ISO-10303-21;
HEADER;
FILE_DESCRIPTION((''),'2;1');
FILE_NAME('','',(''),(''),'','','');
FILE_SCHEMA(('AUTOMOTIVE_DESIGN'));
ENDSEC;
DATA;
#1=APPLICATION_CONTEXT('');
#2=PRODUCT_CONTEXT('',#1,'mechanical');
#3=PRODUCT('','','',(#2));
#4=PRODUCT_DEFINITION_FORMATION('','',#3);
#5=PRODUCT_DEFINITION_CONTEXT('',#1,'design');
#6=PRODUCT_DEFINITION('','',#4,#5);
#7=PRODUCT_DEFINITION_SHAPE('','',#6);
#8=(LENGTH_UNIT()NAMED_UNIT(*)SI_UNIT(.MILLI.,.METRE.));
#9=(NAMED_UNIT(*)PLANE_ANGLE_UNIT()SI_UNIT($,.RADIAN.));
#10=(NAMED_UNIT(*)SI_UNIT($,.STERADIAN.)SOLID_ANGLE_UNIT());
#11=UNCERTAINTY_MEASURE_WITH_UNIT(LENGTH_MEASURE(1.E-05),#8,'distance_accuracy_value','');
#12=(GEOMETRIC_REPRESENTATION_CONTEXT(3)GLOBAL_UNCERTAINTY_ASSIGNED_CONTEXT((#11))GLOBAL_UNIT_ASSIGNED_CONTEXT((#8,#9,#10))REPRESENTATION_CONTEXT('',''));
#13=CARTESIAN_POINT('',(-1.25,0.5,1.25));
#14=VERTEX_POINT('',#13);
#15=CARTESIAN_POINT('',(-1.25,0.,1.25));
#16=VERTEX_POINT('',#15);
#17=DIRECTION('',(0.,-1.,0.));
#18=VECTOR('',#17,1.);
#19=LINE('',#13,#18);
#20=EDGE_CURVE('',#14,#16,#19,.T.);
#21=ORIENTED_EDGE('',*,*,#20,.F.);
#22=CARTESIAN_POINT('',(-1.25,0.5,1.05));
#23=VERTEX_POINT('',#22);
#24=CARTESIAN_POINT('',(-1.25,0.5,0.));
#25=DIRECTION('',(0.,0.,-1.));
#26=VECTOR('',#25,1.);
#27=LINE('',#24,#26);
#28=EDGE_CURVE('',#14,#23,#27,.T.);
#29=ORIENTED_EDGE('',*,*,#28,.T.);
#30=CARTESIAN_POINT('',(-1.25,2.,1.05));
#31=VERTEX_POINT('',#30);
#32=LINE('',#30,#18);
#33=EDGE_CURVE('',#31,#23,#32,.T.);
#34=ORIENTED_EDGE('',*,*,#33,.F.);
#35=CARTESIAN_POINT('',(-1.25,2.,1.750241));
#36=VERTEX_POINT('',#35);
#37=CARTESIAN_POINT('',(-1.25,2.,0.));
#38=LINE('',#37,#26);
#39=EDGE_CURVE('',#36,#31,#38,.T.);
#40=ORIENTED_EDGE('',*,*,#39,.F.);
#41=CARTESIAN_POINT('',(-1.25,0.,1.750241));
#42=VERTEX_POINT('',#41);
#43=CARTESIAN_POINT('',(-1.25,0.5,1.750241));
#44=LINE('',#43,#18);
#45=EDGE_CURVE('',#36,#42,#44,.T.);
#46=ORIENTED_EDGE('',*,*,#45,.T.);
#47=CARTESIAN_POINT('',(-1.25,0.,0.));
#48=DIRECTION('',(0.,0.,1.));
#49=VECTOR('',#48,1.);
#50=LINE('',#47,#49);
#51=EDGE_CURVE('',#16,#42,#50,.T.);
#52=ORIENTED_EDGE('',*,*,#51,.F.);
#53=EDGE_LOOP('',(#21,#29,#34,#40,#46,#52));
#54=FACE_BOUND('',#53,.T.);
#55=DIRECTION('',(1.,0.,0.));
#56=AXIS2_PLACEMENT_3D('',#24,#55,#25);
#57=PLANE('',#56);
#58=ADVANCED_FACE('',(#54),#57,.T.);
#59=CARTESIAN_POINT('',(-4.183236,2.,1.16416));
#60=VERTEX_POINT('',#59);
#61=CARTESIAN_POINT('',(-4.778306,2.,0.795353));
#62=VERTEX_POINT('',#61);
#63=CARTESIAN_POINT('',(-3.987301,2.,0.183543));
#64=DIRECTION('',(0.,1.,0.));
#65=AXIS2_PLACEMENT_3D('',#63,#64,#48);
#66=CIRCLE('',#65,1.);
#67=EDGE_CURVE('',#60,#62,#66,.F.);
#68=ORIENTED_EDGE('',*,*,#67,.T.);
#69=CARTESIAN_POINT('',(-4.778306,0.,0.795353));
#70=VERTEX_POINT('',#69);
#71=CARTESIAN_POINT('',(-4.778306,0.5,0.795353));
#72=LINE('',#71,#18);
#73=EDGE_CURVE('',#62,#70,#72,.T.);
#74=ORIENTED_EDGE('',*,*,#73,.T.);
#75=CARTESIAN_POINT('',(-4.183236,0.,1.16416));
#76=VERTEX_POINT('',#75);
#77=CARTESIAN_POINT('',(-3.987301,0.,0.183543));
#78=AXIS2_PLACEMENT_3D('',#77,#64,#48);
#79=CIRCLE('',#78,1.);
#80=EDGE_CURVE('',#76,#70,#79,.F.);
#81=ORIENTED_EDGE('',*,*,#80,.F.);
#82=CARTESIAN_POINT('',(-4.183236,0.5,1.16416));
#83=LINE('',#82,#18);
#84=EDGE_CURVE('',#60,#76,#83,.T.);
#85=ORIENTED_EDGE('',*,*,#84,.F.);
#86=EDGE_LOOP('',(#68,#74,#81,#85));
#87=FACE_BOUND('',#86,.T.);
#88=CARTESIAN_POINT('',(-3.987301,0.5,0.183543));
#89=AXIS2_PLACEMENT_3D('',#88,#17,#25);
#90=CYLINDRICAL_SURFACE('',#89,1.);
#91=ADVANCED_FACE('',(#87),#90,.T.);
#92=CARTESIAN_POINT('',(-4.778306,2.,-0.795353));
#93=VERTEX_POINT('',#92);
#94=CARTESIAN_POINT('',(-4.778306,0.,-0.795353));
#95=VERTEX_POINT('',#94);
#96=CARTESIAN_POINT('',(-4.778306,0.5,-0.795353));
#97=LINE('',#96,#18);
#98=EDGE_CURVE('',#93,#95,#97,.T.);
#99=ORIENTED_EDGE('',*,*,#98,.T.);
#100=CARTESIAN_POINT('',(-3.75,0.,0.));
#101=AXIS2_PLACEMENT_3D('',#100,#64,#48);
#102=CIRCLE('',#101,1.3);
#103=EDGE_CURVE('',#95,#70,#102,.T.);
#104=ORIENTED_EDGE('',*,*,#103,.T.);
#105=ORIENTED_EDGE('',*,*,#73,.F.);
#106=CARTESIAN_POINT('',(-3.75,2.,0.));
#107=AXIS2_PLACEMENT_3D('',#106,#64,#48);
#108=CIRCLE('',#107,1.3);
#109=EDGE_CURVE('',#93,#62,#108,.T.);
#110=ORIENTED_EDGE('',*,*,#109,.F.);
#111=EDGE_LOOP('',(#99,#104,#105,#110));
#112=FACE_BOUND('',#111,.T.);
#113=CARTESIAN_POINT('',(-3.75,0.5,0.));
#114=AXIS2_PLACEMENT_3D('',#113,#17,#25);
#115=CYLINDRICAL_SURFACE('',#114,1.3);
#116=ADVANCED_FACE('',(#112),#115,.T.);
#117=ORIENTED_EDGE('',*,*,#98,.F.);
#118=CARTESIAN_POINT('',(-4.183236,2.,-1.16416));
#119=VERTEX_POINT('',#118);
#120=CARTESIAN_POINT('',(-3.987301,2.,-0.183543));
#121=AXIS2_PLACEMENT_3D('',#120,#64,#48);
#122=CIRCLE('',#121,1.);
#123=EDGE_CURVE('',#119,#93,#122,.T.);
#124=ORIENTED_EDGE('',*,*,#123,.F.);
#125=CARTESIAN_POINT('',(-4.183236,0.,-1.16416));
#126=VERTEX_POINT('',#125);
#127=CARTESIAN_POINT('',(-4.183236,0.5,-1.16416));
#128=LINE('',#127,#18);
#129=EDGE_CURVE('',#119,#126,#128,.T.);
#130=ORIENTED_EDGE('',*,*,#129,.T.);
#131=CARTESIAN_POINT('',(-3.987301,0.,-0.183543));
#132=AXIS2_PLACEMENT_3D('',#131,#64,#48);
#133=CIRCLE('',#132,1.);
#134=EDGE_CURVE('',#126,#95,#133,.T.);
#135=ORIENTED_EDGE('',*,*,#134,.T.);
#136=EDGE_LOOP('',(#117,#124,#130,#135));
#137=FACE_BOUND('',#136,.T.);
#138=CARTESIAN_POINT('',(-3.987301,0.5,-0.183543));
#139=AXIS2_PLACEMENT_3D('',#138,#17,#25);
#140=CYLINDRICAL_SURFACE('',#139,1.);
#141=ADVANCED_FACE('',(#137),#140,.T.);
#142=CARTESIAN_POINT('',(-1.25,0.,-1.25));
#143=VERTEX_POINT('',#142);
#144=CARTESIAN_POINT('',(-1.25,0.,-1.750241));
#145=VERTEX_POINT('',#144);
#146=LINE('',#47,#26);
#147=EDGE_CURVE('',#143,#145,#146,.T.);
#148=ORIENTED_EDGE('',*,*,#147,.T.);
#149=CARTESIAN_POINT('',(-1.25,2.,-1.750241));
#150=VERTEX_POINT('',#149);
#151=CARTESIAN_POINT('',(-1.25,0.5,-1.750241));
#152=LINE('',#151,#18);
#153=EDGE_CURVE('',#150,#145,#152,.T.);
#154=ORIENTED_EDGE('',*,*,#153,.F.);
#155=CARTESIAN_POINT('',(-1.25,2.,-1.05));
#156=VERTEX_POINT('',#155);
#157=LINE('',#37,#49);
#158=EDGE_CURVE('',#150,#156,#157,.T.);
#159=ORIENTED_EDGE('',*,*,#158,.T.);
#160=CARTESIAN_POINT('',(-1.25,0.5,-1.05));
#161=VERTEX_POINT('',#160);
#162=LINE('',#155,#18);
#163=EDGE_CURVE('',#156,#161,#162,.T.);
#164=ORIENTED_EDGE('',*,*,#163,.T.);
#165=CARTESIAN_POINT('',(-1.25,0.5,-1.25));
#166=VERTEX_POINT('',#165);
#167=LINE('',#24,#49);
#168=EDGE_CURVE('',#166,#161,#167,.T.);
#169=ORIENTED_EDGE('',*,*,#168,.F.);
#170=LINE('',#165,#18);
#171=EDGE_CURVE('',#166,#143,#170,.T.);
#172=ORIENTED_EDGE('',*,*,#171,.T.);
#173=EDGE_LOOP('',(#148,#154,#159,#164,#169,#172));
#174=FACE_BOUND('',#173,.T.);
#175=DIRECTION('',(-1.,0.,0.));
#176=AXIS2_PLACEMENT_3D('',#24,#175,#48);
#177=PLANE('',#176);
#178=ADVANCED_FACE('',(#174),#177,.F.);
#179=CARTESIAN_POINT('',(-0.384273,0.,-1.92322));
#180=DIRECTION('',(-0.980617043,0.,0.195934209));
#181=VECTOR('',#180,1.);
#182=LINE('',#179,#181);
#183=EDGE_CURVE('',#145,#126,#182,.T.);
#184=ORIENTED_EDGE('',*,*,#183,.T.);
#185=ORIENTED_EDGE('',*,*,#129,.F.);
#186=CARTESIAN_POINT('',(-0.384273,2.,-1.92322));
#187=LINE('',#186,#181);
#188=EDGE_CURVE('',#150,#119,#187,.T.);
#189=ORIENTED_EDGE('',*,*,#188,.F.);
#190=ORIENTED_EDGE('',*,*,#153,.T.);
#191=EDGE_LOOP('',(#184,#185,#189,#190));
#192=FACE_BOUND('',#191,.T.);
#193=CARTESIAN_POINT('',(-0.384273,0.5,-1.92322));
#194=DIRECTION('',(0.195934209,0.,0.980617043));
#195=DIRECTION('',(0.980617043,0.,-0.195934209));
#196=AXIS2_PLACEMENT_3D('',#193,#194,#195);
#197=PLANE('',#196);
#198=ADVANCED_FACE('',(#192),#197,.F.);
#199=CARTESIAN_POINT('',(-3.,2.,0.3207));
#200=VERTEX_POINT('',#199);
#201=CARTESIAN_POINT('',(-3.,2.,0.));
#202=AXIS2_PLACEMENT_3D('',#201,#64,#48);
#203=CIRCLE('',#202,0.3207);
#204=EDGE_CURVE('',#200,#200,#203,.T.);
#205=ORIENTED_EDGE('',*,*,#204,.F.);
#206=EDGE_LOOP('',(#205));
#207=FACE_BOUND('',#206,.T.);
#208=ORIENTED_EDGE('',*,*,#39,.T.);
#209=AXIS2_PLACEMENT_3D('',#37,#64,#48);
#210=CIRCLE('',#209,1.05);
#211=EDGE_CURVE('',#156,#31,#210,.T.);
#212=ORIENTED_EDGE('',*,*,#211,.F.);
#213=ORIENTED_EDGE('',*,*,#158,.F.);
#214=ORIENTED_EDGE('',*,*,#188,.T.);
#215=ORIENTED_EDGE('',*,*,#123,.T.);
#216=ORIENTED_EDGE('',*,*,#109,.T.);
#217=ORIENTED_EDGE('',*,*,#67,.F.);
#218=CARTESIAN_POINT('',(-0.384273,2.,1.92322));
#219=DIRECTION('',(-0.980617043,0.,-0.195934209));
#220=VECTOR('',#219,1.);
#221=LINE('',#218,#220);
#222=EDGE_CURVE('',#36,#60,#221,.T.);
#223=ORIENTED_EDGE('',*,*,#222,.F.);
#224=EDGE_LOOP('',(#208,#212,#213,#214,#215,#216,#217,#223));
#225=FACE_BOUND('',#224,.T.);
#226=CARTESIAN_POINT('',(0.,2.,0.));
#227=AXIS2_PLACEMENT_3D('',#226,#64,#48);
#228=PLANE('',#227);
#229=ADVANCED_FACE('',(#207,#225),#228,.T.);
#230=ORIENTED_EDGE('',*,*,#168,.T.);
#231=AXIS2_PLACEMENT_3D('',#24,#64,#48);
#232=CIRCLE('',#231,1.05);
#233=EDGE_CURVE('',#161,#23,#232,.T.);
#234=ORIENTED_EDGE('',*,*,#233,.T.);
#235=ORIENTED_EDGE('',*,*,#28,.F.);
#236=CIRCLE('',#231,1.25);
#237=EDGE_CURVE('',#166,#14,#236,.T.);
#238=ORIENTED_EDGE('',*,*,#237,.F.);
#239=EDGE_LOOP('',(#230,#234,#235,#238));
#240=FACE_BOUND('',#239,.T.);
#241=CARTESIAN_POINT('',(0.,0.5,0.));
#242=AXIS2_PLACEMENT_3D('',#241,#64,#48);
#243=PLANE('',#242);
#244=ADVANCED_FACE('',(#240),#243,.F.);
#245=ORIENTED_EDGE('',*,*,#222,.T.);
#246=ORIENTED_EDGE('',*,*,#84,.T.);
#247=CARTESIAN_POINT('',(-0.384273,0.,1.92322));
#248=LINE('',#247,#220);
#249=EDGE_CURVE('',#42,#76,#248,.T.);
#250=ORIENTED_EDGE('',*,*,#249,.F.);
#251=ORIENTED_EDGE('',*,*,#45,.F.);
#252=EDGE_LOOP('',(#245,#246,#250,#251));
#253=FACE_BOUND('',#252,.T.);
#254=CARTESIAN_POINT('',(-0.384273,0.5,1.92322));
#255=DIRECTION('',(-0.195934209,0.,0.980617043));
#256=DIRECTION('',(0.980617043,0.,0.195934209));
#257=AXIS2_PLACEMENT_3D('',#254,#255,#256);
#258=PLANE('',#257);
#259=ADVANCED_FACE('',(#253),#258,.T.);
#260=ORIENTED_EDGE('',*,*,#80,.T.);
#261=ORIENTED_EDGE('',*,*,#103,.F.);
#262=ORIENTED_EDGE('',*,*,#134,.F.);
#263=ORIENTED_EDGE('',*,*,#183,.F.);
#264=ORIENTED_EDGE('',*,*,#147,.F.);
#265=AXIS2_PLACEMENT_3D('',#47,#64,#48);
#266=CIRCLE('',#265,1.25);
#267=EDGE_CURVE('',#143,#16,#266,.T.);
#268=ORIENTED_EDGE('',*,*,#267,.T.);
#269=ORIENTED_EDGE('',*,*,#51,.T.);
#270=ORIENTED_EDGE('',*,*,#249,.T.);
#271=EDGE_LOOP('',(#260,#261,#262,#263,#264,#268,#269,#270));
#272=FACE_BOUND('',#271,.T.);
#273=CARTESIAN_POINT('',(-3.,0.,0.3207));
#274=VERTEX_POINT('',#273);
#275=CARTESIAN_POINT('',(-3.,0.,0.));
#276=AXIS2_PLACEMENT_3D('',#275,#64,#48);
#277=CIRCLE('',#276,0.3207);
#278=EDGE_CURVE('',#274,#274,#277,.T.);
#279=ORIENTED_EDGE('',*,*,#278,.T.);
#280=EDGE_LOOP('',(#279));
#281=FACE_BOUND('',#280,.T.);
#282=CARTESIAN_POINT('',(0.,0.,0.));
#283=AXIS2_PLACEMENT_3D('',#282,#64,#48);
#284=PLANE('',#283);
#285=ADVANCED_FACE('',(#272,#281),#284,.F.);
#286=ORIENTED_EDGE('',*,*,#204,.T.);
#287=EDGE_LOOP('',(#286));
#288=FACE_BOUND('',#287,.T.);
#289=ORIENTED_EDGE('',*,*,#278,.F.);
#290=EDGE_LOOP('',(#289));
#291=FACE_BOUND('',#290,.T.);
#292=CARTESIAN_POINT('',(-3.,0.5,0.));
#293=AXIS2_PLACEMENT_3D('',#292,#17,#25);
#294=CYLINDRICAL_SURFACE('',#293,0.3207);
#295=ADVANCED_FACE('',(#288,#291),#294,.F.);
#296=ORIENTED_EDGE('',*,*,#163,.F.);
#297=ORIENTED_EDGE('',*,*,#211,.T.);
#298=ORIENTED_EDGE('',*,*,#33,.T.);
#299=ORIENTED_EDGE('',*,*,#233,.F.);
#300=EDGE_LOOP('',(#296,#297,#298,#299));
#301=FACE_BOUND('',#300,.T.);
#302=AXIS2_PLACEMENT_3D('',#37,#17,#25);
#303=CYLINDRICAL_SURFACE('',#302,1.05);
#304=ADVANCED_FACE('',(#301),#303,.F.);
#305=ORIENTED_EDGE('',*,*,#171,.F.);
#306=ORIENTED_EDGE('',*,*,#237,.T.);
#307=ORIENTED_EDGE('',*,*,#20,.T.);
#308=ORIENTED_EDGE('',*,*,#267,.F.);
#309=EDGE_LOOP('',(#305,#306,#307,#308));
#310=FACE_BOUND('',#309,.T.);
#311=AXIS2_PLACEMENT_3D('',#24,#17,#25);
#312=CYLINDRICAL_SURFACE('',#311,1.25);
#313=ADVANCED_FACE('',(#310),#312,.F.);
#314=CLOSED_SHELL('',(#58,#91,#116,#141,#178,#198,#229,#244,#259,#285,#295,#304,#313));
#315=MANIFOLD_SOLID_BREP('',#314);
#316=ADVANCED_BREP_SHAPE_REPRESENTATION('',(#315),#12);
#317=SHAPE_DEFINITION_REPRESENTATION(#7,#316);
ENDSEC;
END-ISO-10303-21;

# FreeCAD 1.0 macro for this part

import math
import FreeCAD as App
import Part
import Sketcher

doc = App.newDocument("Part")
body = doc.addObject("PartDesign::Body", "Body")

sketch1 = body.newObject("Sketcher::SketchObject", "Sketch")
sketch1.AttachmentSupport = (doc.getObject("XZ_Plane"), [""])
sketch1.MapMode = "FlatFace"
sketch1.addGeometry([
    Part.LineSegment(App.Vector(-1.25, -1.25, 0), App.Vector(-1.25, -1.75, 0)),
    Part.LineSegment(App.Vector(-1.25, -1.75, 0), App.Vector(-4.18, -1.16, 0)),
    Part.ArcOfCircle(Part.Circle(App.Vector(-3.99, -0.18, 0), App.Vector(0, 0, 1), 1), math.radians(-142), math.radians(-101)),
    Part.ArcOfCircle(Part.Circle(App.Vector(-3.75, 0, 0), App.Vector(0, 0, 1), 1.3), math.radians(142), math.radians(218)),
    Part.ArcOfCircle(Part.Circle(App.Vector(-3.99, 0.18, 0), App.Vector(0, 0, 1), 1), math.radians(101), math.radians(142)),
    Part.LineSegment(App.Vector(-4.18, 1.16, 0), App.Vector(-1.25, 1.75, 0)),
    Part.LineSegment(App.Vector(-1.25, 1.75, 0), App.Vector(-1.25, 1.25, 0)),
    Part.ArcOfCircle(Part.Circle(App.Vector(-1.25, 0, 0), App.Vector(0, 0, 1), 1.25), math.radians(90), math.radians(270)),
    Part.Circle(App.Vector(-3, 0, 0), App.Vector(0, 0, 1), 0.32),
], False)
sketch1.addConstraint([
    Sketcher.Constraint("Coincident", 0, 2, 1, 1),
    Sketcher.Constraint("Tangent", 1, 2, 2, 2),
    Sketcher.Constraint("Tangent", 2, 1, 3, 2),
    Sketcher.Constraint("Tangent", 3, 1, 4, 2),
    Sketcher.Constraint("Tangent", 4, 1, 5, 1),
    Sketcher.Constraint("Coincident", 5, 2, 6, 1),
    Sketcher.Constraint("Coincident", 6, 2, 7, 1),
    Sketcher.Constraint("Coincident", 7, 2, 0, 1),
    Sketcher.Constraint("Vertical", 0),
    Sketcher.Constraint("Vertical", 6),
    Sketcher.Constraint("Equal", 2, 4),
    Sketcher.Constraint("Symmetric", 2, 3, 4, 3, -1),
    Sketcher.Constraint("Symmetric", 0, 2, 5, 2, -1),
    Sketcher.Constraint("PointOnObject", 7, 3, -1),
    Sketcher.Constraint("PointOnObject", 8, 3, -1),
    Sketcher.Constraint("Vertical", 7, 3, 0, 2),
    Sketcher.Constraint("Radius", 2, 1.0),
    Sketcher.Constraint("Radius", 3, 1.3),
    Sketcher.Constraint("Radius", 7, 1.25),
    Sketcher.Constraint("DistanceX", 8, 3, -1, 1, 3.0),
    Sketcher.Constraint("Diameter", 8, 0.6414),
    Sketcher.Constraint("DistanceX", 3, 3, 7, 3, 2.5),
    Sketcher.Constraint("DistanceX", 3, 3, -1, 1, 3.75),
    Sketcher.Constraint("DistanceY", 0, 2, 0, 1, 0.500241),
    Sketcher.Constraint("DistanceX", 2, 3, -1, 1, 3.987301),
])
pad1 = body.newObject("PartDesign::Pad", "Pad")
pad1.Profile = sketch1
pad1.Length = 0.5
pad1.Reversed = True

sketch2 = body.newObject("Sketcher::SketchObject", "Sketch001")
sketch2.AttachmentSupport = (doc.getObject("XZ_Plane"), [""])
sketch2.MapMode = "FlatFace"
sketch2.AttachmentOffset = App.Placement(App.Vector(0, 0, -0.5), App.Rotation())
sketch2.addGeometry([
    Part.LineSegment(App.Vector(-1.25, -1.05, 0), App.Vector(-1.25, -1.75, 0)),
    Part.LineSegment(App.Vector(-1.25, -1.75, 0), App.Vector(-4.18, -1.16, 0)),
    Part.ArcOfCircle(Part.Circle(App.Vector(-3.99, -0.18, 0), App.Vector(0, 0, 1), 1), math.radians(-142), math.radians(-101)),
    Part.ArcOfCircle(Part.Circle(App.Vector(-3.75, 0, 0), App.Vector(0, 0, 1), 1.3), math.radians(142), math.radians(218)),
    Part.ArcOfCircle(Part.Circle(App.Vector(-3.99, 0.18, 0), App.Vector(0, 0, 1), 1), math.radians(101), math.radians(142)),
    Part.LineSegment(App.Vector(-4.18, 1.16, 0), App.Vector(-1.25, 1.75, 0)),
    Part.LineSegment(App.Vector(-1.25, 1.75, 0), App.Vector(-1.25, 1.05, 0)),
    Part.ArcOfCircle(Part.Circle(App.Vector(-1.25, 0, 0), App.Vector(0, 0, 1), 1.05), math.radians(90), math.radians(270)),
    Part.Circle(App.Vector(-3, 0, 0), App.Vector(0, 0, 1), 0.32),
], False)
sketch2.addConstraint([
    Sketcher.Constraint("Coincident", 0, 2, 1, 1),
    Sketcher.Constraint("Tangent", 1, 2, 2, 2),
    Sketcher.Constraint("Tangent", 2, 1, 3, 2),
    Sketcher.Constraint("Tangent", 3, 1, 4, 2),
    Sketcher.Constraint("Tangent", 4, 1, 5, 1),
    Sketcher.Constraint("Coincident", 5, 2, 6, 1),
    Sketcher.Constraint("Coincident", 6, 2, 7, 1),
    Sketcher.Constraint("Coincident", 7, 2, 0, 1),
    Sketcher.Constraint("Vertical", 0),
    Sketcher.Constraint("Vertical", 6),
    Sketcher.Constraint("Equal", 2, 4),
    Sketcher.Constraint("Symmetric", 2, 3, 4, 3, -1),
    Sketcher.Constraint("Symmetric", 0, 2, 5, 2, -1),
    Sketcher.Constraint("PointOnObject", 7, 3, -1),
    Sketcher.Constraint("PointOnObject", 8, 3, -1),
    Sketcher.Constraint("Vertical", 7, 3, 0, 2),
    Sketcher.Constraint("Radius", 2, 1.0),
    Sketcher.Constraint("Radius", 3, 1.3),
    Sketcher.Constraint("Radius", 7, 1.05),
    Sketcher.Constraint("DistanceX", 8, 3, -1, 1, 3.0),
    Sketcher.Constraint("Diameter", 8, 0.6414),
    Sketcher.Constraint("DistanceX", 3, 3, 7, 3, 2.5),
    Sketcher.Constraint("DistanceX", 3, 3, -1, 1, 3.75),
    Sketcher.Constraint("DistanceY", 0, 2, 0, 1, 0.700241),
    Sketcher.Constraint("DistanceX", 2, 3, -1, 1, 3.987301),
])
pad2 = body.newObject("PartDesign::Pad", "Pad001")
pad2.Profile = sketch2
pad2.Length = 1.5
pad2.Reversed = True

doc.recompute()
